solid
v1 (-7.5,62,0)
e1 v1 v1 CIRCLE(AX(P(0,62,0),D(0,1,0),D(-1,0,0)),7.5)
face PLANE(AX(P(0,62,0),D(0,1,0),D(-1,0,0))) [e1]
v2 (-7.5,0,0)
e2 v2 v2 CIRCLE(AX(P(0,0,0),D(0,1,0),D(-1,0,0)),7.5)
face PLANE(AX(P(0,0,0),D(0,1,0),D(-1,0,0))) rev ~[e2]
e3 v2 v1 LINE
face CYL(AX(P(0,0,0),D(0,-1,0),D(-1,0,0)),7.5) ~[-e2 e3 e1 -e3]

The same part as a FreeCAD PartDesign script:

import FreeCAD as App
import Part
import Sketcher
from FreeCAD import Vector
Q = App.Units.Quantity

doc = App.newDocument("Part")
body = doc.addObject("PartDesign::Body", "Body")

# Sketch on XZ plane
sketch1 = body.newObject("Sketcher::SketchObject", "Sketch")
sketch1.AttachmentSupport = (doc.getObject("XZ_Plane"), [""])
sketch1.MapMode = "FlatFace"
sketch1.addGeometry(Part.Circle(Vector(0, 0, 0), Vector(0, 0, 1), 7.5), False)
sketch1.addConstraint(Sketcher.Constraint("Coincident", 0, 3, -1, 1))
sketch1.addConstraint(Sketcher.Constraint("Diameter", 0, Q("15 mm")))
pad1 = body.newObject("PartDesign::Pad", "Pad")
pad1.Profile = sketch1
pad1.Length = 62
pad1.Reversed = True

doc.recompute()
